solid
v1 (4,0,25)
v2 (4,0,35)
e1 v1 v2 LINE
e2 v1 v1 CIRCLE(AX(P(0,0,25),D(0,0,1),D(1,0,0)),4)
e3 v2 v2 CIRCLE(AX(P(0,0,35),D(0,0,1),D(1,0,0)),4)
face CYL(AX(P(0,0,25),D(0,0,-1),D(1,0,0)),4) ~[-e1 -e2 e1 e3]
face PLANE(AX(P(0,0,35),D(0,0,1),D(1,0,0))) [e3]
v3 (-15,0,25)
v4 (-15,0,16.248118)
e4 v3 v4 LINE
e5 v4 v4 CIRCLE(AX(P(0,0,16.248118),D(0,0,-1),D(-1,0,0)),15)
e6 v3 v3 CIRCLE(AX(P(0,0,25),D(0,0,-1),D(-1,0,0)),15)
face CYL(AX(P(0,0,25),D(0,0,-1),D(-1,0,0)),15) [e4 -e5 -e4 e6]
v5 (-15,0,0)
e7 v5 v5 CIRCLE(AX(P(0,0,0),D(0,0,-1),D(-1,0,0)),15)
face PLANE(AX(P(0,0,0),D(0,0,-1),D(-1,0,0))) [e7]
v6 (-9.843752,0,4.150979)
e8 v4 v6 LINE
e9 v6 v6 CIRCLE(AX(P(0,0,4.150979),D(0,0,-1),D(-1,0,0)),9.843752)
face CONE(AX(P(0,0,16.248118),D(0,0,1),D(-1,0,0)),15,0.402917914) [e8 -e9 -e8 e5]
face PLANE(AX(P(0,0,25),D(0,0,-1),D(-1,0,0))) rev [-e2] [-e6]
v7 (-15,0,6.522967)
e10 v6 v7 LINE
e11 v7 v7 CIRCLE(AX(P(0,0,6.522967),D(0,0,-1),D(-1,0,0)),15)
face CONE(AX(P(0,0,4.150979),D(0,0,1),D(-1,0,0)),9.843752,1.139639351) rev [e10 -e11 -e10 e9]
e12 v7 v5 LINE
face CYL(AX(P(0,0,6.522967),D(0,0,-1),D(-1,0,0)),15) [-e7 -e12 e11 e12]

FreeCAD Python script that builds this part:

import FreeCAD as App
import Part
import Sketcher
Q = App.Units.Quantity

doc = App.newDocument("Part")
body = doc.addObject("PartDesign::Body", "Body")

# Sketch on XZ plane
sketch1 = body.newObject("Sketcher::SketchObject", "Sketch")
sketch1.AttachmentSupport = (doc.getObject("XZ_Plane"), [""])
sketch1.MapMode = "FlatFace"
sketch1.addGeometry(Part.LineSegment(App.Vector(0, 0, 0), App.Vector(0, 25, 0)), False)
sketch1.addGeometry(Part.LineSegment(App.Vector(0, 25, 0), App.Vector(-15, 25, 0)), False)
sketch1.addGeometry(Part.LineSegment(App.Vector(-15, 25, 0), App.Vector(-15, 16, 0)), False)
sketch1.addGeometry(Part.LineSegment(App.Vector(-15, 16, 0), App.Vector(-10, 4, 0)), False)
sketch1.addGeometry(Part.LineSegment(App.Vector(-10, 4, 0), App.Vector(-15, 7, 0)), False)
sketch1.addGeometry(Part.LineSegment(App.Vector(-15, 7, 0), App.Vector(-15, 0, 0)), False)
sketch1.addGeometry(Part.LineSegment(App.Vector(-15, 0, 0), App.Vector(0, 0, 0)), False)
sketch1.addConstraint(Sketcher.Constraint("Coincident", 0, 2, 1, 1))
sketch1.addConstraint(Sketcher.Constraint("Coincident", 1, 2, 2, 1))
sketch1.addConstraint(Sketcher.Constraint("Coincident", 2, 2, 3, 1))
sketch1.addConstraint(Sketcher.Constraint("Coincident", 3, 2, 4, 1))
sketch1.addConstraint(Sketcher.Constraint("Coincident", 4, 2, 5, 1))
sketch1.addConstraint(Sketcher.Constraint("Coincident", 5, 2, 6, 1))
sketch1.addConstraint(Sketcher.Constraint("Coincident", 6, 2, 0, 1))
sketch1.addConstraint(Sketcher.Constraint("Vertical", 0))
sketch1.addConstraint(Sketcher.Constraint("Horizontal", 1))
sketch1.addConstraint(Sketcher.Constraint("Vertical", 2))
sketch1.addConstraint(Sketcher.Constraint("Vertical", 5))
sketch1.addConstraint(Sketcher.Constraint("Horizontal", 6))
sketch1.addConstraint(Sketcher.Constraint("Coincident", 6, 2, -1, 1))
sketch1.addConstraint(Sketcher.Constraint("Vertical", 2, 2, 4, 2))
sketch1.addConstraint(Sketcher.Constraint("DistanceX", 1, 2, 1, 1, Q("15 mm")))
sketch1.addConstraint(Sketcher.Constraint("DistanceY", 0, 1, 0, 2, Q("25 mm")))
sketch1.addConstraint(Sketcher.Constraint("DistanceY", 2, 2, 2, 1, Q("8.751882 mm")))
sketch1.addConstraint(Sketcher.Constraint("Distance", 4, Q("5.675669 mm")))
sketch1.addConstraint(Sketcher.Constraint("DistanceY", 5, 2, 5, 1, Q("6.522967 mm")))
sketch1.addConstraint(Sketcher.Constraint("DistanceY", -1, 1, 3, 2, Q("4.150979 mm")))
revolution = body.newObject("PartDesign::Revolution", "Revolution")
revolution.Profile = sketch1
revolution.ReferenceAxis = (sketch1, ["V_Axis"])
revolution.Angle = 360

# Sketch on XY plane
sketch2 = body.newObject("Sketcher::SketchObject", "Sketch001")
sketch2.AttachmentSupport = (doc.getObject("XY_Plane"), [""])
sketch2.MapMode = "FlatFace"
sketch2.AttachmentOffset = App.Placement(App.Vector(0, 0, 25), App.Rotation())
sketch2.addGeometry(Part.Circle(App.Vector(0, 0, 0), App.Vector(0, 0, 1), 4), False)
sketch2.addConstraint(Sketcher.Constraint("Coincident", 0, 3, -1, 1))
sketch2.addConstraint(Sketcher.Constraint("Diameter", 0, Q("8 mm")))
pad1 = body.newObject("PartDesign::Pad", "Pad")
pad1.Profile = sketch2
pad1.Length = 10

doc.recompute()
